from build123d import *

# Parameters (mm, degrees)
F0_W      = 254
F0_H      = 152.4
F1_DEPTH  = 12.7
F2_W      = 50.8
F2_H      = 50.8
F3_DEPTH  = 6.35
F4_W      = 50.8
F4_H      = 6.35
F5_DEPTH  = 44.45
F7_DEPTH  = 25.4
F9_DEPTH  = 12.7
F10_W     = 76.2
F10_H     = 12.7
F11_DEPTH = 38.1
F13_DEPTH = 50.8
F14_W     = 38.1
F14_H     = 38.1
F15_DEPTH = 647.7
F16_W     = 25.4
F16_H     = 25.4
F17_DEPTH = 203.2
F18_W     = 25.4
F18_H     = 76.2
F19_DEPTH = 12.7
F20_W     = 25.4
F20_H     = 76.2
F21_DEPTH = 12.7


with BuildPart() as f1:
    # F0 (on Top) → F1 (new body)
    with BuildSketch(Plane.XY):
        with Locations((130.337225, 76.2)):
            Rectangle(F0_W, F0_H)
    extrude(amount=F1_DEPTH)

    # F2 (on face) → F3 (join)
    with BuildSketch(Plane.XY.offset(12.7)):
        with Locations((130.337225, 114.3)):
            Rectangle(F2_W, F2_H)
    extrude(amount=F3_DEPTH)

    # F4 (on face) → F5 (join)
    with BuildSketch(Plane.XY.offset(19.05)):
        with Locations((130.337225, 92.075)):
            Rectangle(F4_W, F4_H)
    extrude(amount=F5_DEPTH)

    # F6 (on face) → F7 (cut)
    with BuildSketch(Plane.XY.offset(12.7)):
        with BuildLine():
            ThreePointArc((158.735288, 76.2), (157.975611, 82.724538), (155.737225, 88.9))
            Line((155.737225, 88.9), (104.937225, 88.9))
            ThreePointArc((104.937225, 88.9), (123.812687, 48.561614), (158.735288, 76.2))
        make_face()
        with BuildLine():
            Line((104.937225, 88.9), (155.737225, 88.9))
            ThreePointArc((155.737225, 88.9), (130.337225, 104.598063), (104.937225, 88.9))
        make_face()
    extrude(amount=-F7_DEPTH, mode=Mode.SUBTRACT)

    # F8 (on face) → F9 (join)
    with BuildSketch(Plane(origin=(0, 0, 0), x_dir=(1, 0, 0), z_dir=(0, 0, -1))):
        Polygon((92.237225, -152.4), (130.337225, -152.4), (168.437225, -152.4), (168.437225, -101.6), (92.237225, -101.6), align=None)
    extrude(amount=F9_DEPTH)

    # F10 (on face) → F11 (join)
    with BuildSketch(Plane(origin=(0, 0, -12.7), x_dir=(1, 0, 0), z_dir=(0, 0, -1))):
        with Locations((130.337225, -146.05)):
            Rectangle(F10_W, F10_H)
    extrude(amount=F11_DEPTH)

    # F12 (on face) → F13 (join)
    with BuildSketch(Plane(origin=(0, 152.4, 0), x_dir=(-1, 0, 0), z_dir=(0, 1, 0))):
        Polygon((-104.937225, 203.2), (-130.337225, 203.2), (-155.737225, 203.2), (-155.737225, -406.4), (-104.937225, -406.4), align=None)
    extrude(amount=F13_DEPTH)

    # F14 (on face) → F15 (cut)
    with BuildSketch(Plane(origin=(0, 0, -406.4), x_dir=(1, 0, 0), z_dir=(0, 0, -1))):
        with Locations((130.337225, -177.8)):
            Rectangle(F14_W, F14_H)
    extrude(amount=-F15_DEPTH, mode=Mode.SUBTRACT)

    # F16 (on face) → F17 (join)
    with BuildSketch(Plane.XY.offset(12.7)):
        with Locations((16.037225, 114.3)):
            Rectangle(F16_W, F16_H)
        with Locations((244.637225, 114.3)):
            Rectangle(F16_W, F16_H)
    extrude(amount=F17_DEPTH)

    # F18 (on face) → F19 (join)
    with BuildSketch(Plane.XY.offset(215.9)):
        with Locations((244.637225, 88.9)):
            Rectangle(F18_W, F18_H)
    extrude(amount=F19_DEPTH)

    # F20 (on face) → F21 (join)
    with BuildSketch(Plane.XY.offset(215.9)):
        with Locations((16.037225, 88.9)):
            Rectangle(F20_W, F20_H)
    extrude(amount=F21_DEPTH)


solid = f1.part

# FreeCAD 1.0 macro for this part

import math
import FreeCAD as App
import Part
import Sketcher
from FreeCAD import Vector
Q = App.Units.Quantity

doc = App.newDocument("Part")
body = doc.addObject("PartDesign::Body", "Body")

sketch1 = doc.addObject("Sketcher::SketchObject", "Sketch")
body.addObject(sketch1)
sketch1.AttachmentSupport = (doc.XY_Plane, [""])
sketch1.MapMode = "FlatFace"
sketch1.addGeometry(Part.LineSegment(Vector(3, 152, 0), Vector(3, 0, 0)), False)
sketch1.addGeometry(Part.LineSegment(Vector(3, 0, 0), Vector(257, 0, 0)), False)
sketch1.addGeometry(Part.LineSegment(Vector(257, 0, 0), Vector(257, 152, 0)), False)
sketch1.addGeometry(Part.LineSegment(Vector(257, 152, 0), Vector(3, 152, 0)), False)
sketch1.addConstraint(Sketcher.Constraint("Coincident", 0, 2, 1, 1))
sketch1.addConstraint(Sketcher.Constraint("Coincident", 1, 2, 2, 1))
sketch1.addConstraint(Sketcher.Constraint("Coincident", 2, 2, 3, 1))
sketch1.addConstraint(Sketcher.Constraint("Coincident", 3, 2, 0, 1))
sketch1.addConstraint(Sketcher.Constraint("Vertical", 0))
sketch1.addConstraint(Sketcher.Constraint("Horizontal", 1))
sketch1.addConstraint(Sketcher.Constraint("Vertical", 2))
sketch1.addConstraint(Sketcher.Constraint("Horizontal", 3))
sketch1.addConstraint(Sketcher.Constraint("PointOnObject", 0, 2, -1))
sketch1.addConstraint(Sketcher.Constraint("DistanceX", 1, 1, 1, 2, Q("10 in")))
sketch1.addConstraint(Sketcher.Constraint("DistanceY", 0, 2, 0, 1, Q("6 in")))
sketch1.addConstraint(Sketcher.Constraint("DistanceX", -1, 1, 0, 2, 3.337225))
pad1 = doc.addObject("PartDesign::Pad", "Pad")
body.addObject(pad1)
pad1.Profile = sketch1
pad1.Length = Q("0.5 in")

sketch2 = doc.addObject("Sketcher::SketchObject", "Sketch001")
body.addObject(sketch2)
sketch2.AttachmentSupport = (doc.XY_Plane, [""])
sketch2.MapMode = "FlatFace"
sketch2.AttachmentOffset = App.Placement(Vector(0, 0, 0.5 * 25.4), App.Rotation())
sketch2.addGeometry(Part.LineSegment(Vector(105, 140, 0), Vector(105, 89, 0)), False)
sketch2.addGeometry(Part.LineSegment(Vector(105, 89, 0), Vector(156, 89, 0)), False)
sketch2.addGeometry(Part.LineSegment(Vector(156, 89, 0), Vector(156, 140, 0)), False)
sketch2.addGeometry(Part.LineSegment(Vector(156, 140, 0), Vector(105, 140, 0)), False)
sketch2.addConstraint(Sketcher.Constraint("Coincident", 0, 2, 1, 1))
sketch2.addConstraint(Sketcher.Constraint("Coincident", 1, 2, 2, 1))
sketch2.addConstraint(Sketcher.Constraint("Coincident", 2, 2, 3, 1))
sketch2.addConstraint(Sketcher.Constraint("Coincident", 3, 2, 0, 1))
sketch2.addConstraint(Sketcher.Constraint("Vertical", 0))
sketch2.addConstraint(Sketcher.Constraint("Horizontal", 1))
sketch2.addConstraint(Sketcher.Constraint("Vertical", 2))
sketch2.addConstraint(Sketcher.Constraint("Horizontal", 3))
sketch2.addConstraint(Sketcher.Constraint("Equal", 3, 0))
sketch2.addConstraint(Sketcher.Constraint("DistanceX", 1, 1, 1, 2, Q("2 in")))
sketch2.addConstraint(Sketcher.Constraint("DistanceY", -1, 1, 0, 2, Q("3.5 in")))
sketch2.addConstraint(Sketcher.Constraint("DistanceX", -1, 1, 0, 2, 104.937225))
pad2 = doc.addObject("PartDesign::Pad", "Pad001")
body.addObject(pad2)
pad2.Profile = sketch2
pad2.Length = Q("0.25 in")

sketch3 = doc.addObject("Sketcher::SketchObject", "Sketch002")
body.addObject(sketch3)
sketch3.AttachmentSupport = (doc.XY_Plane, [""])
sketch3.MapMode = "FlatFace"
sketch3.AttachmentOffset = App.Placement(Vector(0, 0, 0.75 * 25.4), App.Rotation())
sketch3.addGeometry(Part.LineSegment(Vector(105, 95, 0), Vector(105, 89, 0)), False)
sketch3.addGeometry(Part.LineSegment(Vector(105, 89, 0), Vector(156, 89, 0)), False)
sketch3.addGeometry(Part.LineSegment(Vector(156, 89, 0), Vector(156, 95, 0)), False)
sketch3.addGeometry(Part.LineSegment(Vector(156, 95, 0), Vector(105, 95, 0)), False)
sketch3.addConstraint(Sketcher.Constraint("Coincident", 0, 2, 1, 1))
sketch3.addConstraint(Sketcher.Constraint("Coincident", 1, 2, 2, 1))
sketch3.addConstraint(Sketcher.Constraint("Coincident", 2, 2, 3, 1))
sketch3.addConstraint(Sketcher.Constraint("Coincident", 3, 2, 0, 1))
sketch3.addConstraint(Sketcher.Constraint("Vertical", 0))
sketch3.addConstraint(Sketcher.Constraint("Horizontal", 1))
sketch3.addConstraint(Sketcher.Constraint("Vertical", 2))
sketch3.addConstraint(Sketcher.Constraint("Horizontal", 3))
sketch3.addConstraint(Sketcher.Constraint("DistanceX", 1, 1, 1, 2, Q("2 in")))
sketch3.addConstraint(Sketcher.Constraint("DistanceY", 0, 2, 0, 1, Q("0.25 in")))
sketch3.addConstraint(Sketcher.Constraint("DistanceY", -1, 1, 0, 2, Q("3.5 in")))
sketch3.addConstraint(Sketcher.Constraint("DistanceX", -1, 1, 0, 2, 104.937225))
pad3 = doc.addObject("PartDesign::Pad", "Pad002")
body.addObject(pad3)
pad3.Profile = sketch3
pad3.Length = Q("1.75 in")

sketch4 = doc.addObject("Sketcher::SketchObject", "Sketch003")
body.addObject(sketch4)
sketch4.AttachmentSupport = (doc.XY_Plane, [""])
sketch4.MapMode = "FlatFace"
sketch4.AttachmentOffset = App.Placement(Vector(0, 0, 0.5 * 25.4), App.Rotation())
sketch4.addGeometry(Part.ArcOfCircle(Part.Circle(Vector(130, 76, 0), Vector(0, 0, 1), 28), math.radians(0), math.radians(27)), False)
sketch4.addGeometry(Part.ArcOfCircle(Part.Circle(Vector(130, 76, 0), Vector(0, 0, 1), 28), math.radians(27), math.radians(153)), False)
sketch4.addGeometry(Part.ArcOfCircle(Part.Circle(Vector(130, 76, 0), Vector(0, 0, 1), 28), math.radians(153), math.radians(360)), False)
sketch4.addConstraint(Sketcher.Constraint("Tangent", 0, 2, 1, 1))
sketch4.addConstraint(Sketcher.Constraint("Tangent", 1, 2, 2, 1))
sketch4.addConstraint(Sketcher.Constraint("Tangent", 2, 2, 0, 1))
sketch4.addConstraint(Sketcher.Constraint("Horizontal", 0, 2, 1, 2))
sketch4.addConstraint(Sketcher.Constraint("Horizontal", 1, 3, 2, 2))
sketch4.addConstraint(Sketcher.Constraint("DistanceY", -1, 1, 0, 3, Q("2.9999999 in")))
sketch4.addConstraint(Sketcher.Constraint("DistanceX", 2, 3, 0, 2, Q("1 in")))
sketch4.addConstraint(Sketcher.Constraint("DistanceY", -1, 1, 0, 2, Q("3.5 in")))
sketch4.addConstraint(Sketcher.Constraint("DistanceX", -1, 1, 2, 2, 158.735288))
pocket1 = doc.addObject("PartDesign::Pocket", "Pocket")
body.addObject(pocket1)
pocket1.Profile = sketch4
pocket1.Length = Q("1 in")

sketch5 = doc.addObject("Sketcher::SketchObject", "Sketch004")
body.addObject(sketch5)
sketch5.AttachmentSupport = (doc.XY_Plane, [""])
sketch5.MapMode = "FlatFace"
sketch5.addGeometry(Part.LineSegment(Vector(92, 152, 0), Vector(168, 152, 0)), False)
sketch5.addGeometry(Part.LineSegment(Vector(168, 152, 0), Vector(168, 102, 0)), False)
sketch5.addGeometry(Part.LineSegment(Vector(168, 102, 0), Vector(92, 102, 0)), False)
sketch5.addGeometry(Part.LineSegment(Vector(92, 102, 0), Vector(92, 152, 0)), False)
sketch5.addConstraint(Sketcher.Constraint("Coincident", 0, 2, 1, 1))
sketch5.addConstraint(Sketcher.Constraint("Coincident", 1, 2, 2, 1))
sketch5.addConstraint(Sketcher.Constraint("Coincident", 2, 2, 3, 1))
sketch5.addConstraint(Sketcher.Constraint("Coincident", 3, 2, 0, 1))
sketch5.addConstraint(Sketcher.Constraint("Horizontal", 0))
sketch5.addConstraint(Sketcher.Constraint("Vertical", 1))
sketch5.addConstraint(Sketcher.Constraint("Horizontal", 2))
sketch5.addConstraint(Sketcher.Constraint("Vertical", 3))
sketch5.addConstraint(Sketcher.Constraint("DistanceX", 0, 1, 0, 2, Q("3 in")))
sketch5.addConstraint(Sketcher.Constraint("DistanceY", 1, 2, 1, 1, Q("2 in")))
sketch5.addConstraint(Sketcher.Constraint("DistanceY", -1, 1, 0, 2, Q("6 in")))
sketch5.addConstraint(Sketcher.Constraint("DistanceX", -1, 1, 0, 2, 168.437225))
pad4 = doc.addObject("PartDesign::Pad", "Pad003")
body.addObject(pad4)
pad4.Profile = sketch5
pad4.Length = Q("0.5 in")
pad4.Reversed = True

sketch6 = doc.addObject("Sketcher::SketchObject", "Sketch005")
body.addObject(sketch6)
sketch6.AttachmentSupport = (doc.XY_Plane, [""])
sketch6.MapMode = "FlatFace"
sketch6.AttachmentOffset = App.Placement(Vector(0, 0, -0.5 * 25.4), App.Rotation())
sketch6.addGeometry(Part.LineSegment(Vector(92, 140, 0), Vector(92, 152, 0)), False)
sketch6.addGeometry(Part.LineSegment(Vector(92, 152, 0), Vector(168, 152, 0)), False)
sketch6.addGeometry(Part.LineSegment(Vector(168, 152, 0), Vector(168, 140, 0)), False)
sketch6.addGeometry(Part.LineSegment(Vector(168, 140, 0), Vector(92, 140, 0)), False)
sketch6.addConstraint(Sketcher.Constraint("Coincident", 0, 2, 1, 1))
sketch6.addConstraint(Sketcher.Constraint("Coincident", 1, 2, 2, 1))
sketch6.addConstraint(Sketcher.Constraint("Coincident", 2, 2, 3, 1))
sketch6.addConstraint(Sketcher.Constraint("Coincident", 3, 2, 0, 1))
sketch6.addConstraint(Sketcher.Constraint("Vertical", 0))
sketch6.addConstraint(Sketcher.Constraint("Horizontal", 1))
sketch6.addConstraint(Sketcher.Constraint("Vertical", 2))
sketch6.addConstraint(Sketcher.Constraint("Horizontal", 3))
sketch6.addConstraint(Sketcher.Constraint("DistanceX", 1, 1, 1, 2, Q("3 in")))
sketch6.addConstraint(Sketcher.Constraint("DistanceY", 0, 1, 0, 2, Q("0.5 in")))
sketch6.addConstraint(Sketcher.Constraint("DistanceY", -1, 1, 0, 2, Q("6 in")))
sketch6.addConstraint(Sketcher.Constraint("DistanceX", -1, 1, 0, 2, 92.237225))
pad5 = doc.addObject("PartDesign::Pad", "Pad004")
body.addObject(pad5)
pad5.Profile = sketch6
pad5.Length = Q("1.5 in")
pad5.Reversed = True

sketch7 = doc.addObject("Sketcher::SketchObject", "Sketch006")
body.addObject(sketch7)
sketch7.AttachmentSupport = (doc.XZ_Plane, [""])
sketch7.MapMode = "FlatFace"
sketch7.AttachmentOffset = App.Placement(Vector(0, 0, -6 * 25.4), App.Rotation())
sketch7.addGeometry(Part.LineSegment(Vector(105, 203, 0), Vector(156, 203, 0)), False)
sketch7.addGeometry(Part.LineSegment(Vector(156, 203, 0), Vector(156, -406, 0)), False)
sketch7.addGeometry(Part.LineSegment(Vector(156, -406, 0), Vector(105, -406, 0)), False)
sketch7.addGeometry(Part.LineSegment(Vector(105, -406, 0), Vector(105, 203, 0)), False)
sketch7.addConstraint(Sketcher.Constraint("Coincident", 0, 2, 1, 1))
sketch7.addConstraint(Sketcher.Constraint("Coincident", 1, 2, 2, 1))
sketch7.addConstraint(Sketcher.Constraint("Coincident", 2, 2, 3, 1))
sketch7.addConstraint(Sketcher.Constraint("Coincident", 3, 2, 0, 1))
sketch7.addConstraint(Sketcher.Constraint("Horizontal", 0))
sketch7.addConstraint(Sketcher.Constraint("Vertical", 1))
sketch7.addConstraint(Sketcher.Constraint("Horizontal", 2))
sketch7.addConstraint(Sketcher.Constraint("Vertical", 3))
sketch7.addConstraint(Sketcher.Constraint("DistanceX", 0, 1, 0, 2, Q("2 in")))
sketch7.addConstraint(Sketcher.Constraint("DistanceY", 1, 2, 1, 1, Q("24 in")))
sketch7.addConstraint(Sketcher.Constraint("DistanceY", -1, 1, 0, 2, Q("8 in")))
sketch7.addConstraint(Sketcher.Constraint("DistanceX", -1, 1, 0, 2, 155.737225))
pad6 = doc.addObject("PartDesign::Pad", "Pad005")
body.addObject(pad6)
pad6.Profile = sketch7
pad6.Length = Q("2 in")
pad6.Reversed = True

sketch8 = doc.addObject("Sketcher::SketchObject", "Sketch007")
body.addObject(sketch8)
sketch8.AttachmentSupport = (doc.XY_Plane, [""])
sketch8.MapMode = "FlatFace"
sketch8.AttachmentOffset = App.Placement(Vector(0, 0, -16 * 25.4), App.Rotation())
sketch8.addGeometry(Part.LineSegment(Vector(111, 159, 0), Vector(111, 197, 0)), False)
sketch8.addGeometry(Part.LineSegment(Vector(111, 197, 0), Vector(149, 197, 0)), False)
sketch8.addGeometry(Part.LineSegment(Vector(149, 197, 0), Vector(149, 159, 0)), False)
sketch8.addGeometry(Part.LineSegment(Vector(149, 159, 0), Vector(111, 159, 0)), False)
sketch8.addConstraint(Sketcher.Constraint("Coincident", 0, 2, 1, 1))
sketch8.addConstraint(Sketcher.Constraint("Coincident", 1, 2, 2, 1))
sketch8.addConstraint(Sketcher.Constraint("Coincident", 2, 2, 3, 1))
sketch8.addConstraint(Sketcher.Constraint("Coincident", 3, 2, 0, 1))
sketch8.addConstraint(Sketcher.Constraint("Vertical", 0))
sketch8.addConstraint(Sketcher.Constraint("Horizontal", 1))
sketch8.addConstraint(Sketcher.Constraint("Vertical", 2))
sketch8.addConstraint(Sketcher.Constraint("Horizontal", 3))
sketch8.addConstraint(Sketcher.Constraint("Equal", 3, 0))
sketch8.addConstraint(Sketcher.Constraint("DistanceX", 1, 1, 1, 2, Q("1.5 in")))
sketch8.addConstraint(Sketcher.Constraint("DistanceY", -1, 1, 0, 2, Q("7.75 in")))
sketch8.addConstraint(Sketcher.Constraint("DistanceX", -1, 1, 0, 2, 111.287225))
pocket2 = doc.addObject("PartDesign::Pocket", "Pocket001")
body.addObject(pocket2)
pocket2.Profile = sketch8
pocket2.Length = Q("25.5 in")
pocket2.Reversed = True

sketch9 = doc.addObject("Sketcher::SketchObject", "Sketch008")
body.addObject(sketch9)
sketch9.AttachmentSupport = (doc.XY_Plane, [""])
sketch9.MapMode = "FlatFace"
sketch9.AttachmentOffset = App.Placement(Vector(0, 0, 0.5 * 25.4), App.Rotation())
sketch9.addGeometry(Part.LineSegment(Vector(3, 127, 0), Vector(3, 102, 0)), False)
sketch9.addGeometry(Part.LineSegment(Vector(3, 102, 0), Vector(29, 102, 0)), False)
sketch9.addGeometry(Part.LineSegment(Vector(29, 102, 0), Vector(29, 127, 0)), False)
sketch9.addGeometry(Part.LineSegment(Vector(29, 127, 0), Vector(3, 127, 0)), False)
sketch9.addGeometry(Part.LineSegment(Vector(232, 127, 0), Vector(232, 102, 0)), False)
sketch9.addGeometry(Part.LineSegment(Vector(232, 102, 0), Vector(257, 102, 0)), False)
sketch9.addGeometry(Part.LineSegment(Vector(257, 102, 0), Vector(257, 127, 0)), False)
sketch9.addGeometry(Part.LineSegment(Vector(257, 127, 0), Vector(232, 127, 0)), False)
sketch9.addConstraint(Sketcher.Constraint("Coincident", 0, 2, 1, 1))
sketch9.addConstraint(Sketcher.Constraint("Coincident", 1, 2, 2, 1))
sketch9.addConstraint(Sketcher.Constraint("Coincident", 2, 2, 3, 1))
sketch9.addConstraint(Sketcher.Constraint("Coincident", 3, 2, 0, 1))
sketch9.addConstraint(Sketcher.Constraint("Coincident", 4, 2, 5, 1))
sketch9.addConstraint(Sketcher.Constraint("Coincident", 5, 2, 6, 1))
sketch9.addConstraint(Sketcher.Constraint("Coincident", 6, 2, 7, 1))
sketch9.addConstraint(Sketcher.Constraint("Coincident", 7, 2, 4, 1))
sketch9.addConstraint(Sketcher.Constraint("Vertical", 0))
sketch9.addConstraint(Sketcher.Constraint("Horizontal", 1))
sketch9.addConstraint(Sketcher.Constraint("Vertical", 2))
sketch9.addConstraint(Sketcher.Constraint("Horizontal", 3))
sketch9.addConstraint(Sketcher.Constraint("Vertical", 4))
sketch9.addConstraint(Sketcher.Constraint("Horizontal", 5))
sketch9.addConstraint(Sketcher.Constraint("Vertical", 6))
sketch9.addConstraint(Sketcher.Constraint("Horizontal", 7))
sketch9.addConstraint(Sketcher.Constraint("Horizontal", 1, 2, 4, 2))
sketch9.addConstraint(Sketcher.Constraint("Horizontal", 3, 2, 6, 2))
sketch9.addConstraint(Sketcher.Constraint("Equal", 3, 5))
sketch9.addConstraint(Sketcher.Constraint("Equal", 7, 0))
sketch9.addConstraint(Sketcher.Constraint("DistanceX", 1, 1, 1, 2, Q("1 in")))
sketch9.addConstraint(Sketcher.Constraint("DistanceY", -1, 1, 0, 2, Q("4 in")))
sketch9.addConstraint(Sketcher.Constraint("DistanceX", 1, 2, 4, 2, Q("8 in")))
sketch9.addConstraint(Sketcher.Constraint("DistanceX", -1, 1, 0, 2, 3.337225))
pad7 = doc.addObject("PartDesign::Pad", "Pad006")
body.addObject(pad7)
pad7.Profile = sketch9
pad7.Length = Q("8 in")

sketch10 = doc.addObject("Sketcher::SketchObject", "Sketch009")
body.addObject(sketch10)
sketch10.AttachmentSupport = (doc.XY_Plane, [""])
sketch10.MapMode = "FlatFace"
sketch10.AttachmentOffset = App.Placement(Vector(0, 0, 8.5 * 25.4), App.Rotation())
sketch10.addGeometry(Part.LineSegment(Vector(232, 127, 0), Vector(232, 51, 0)), False)
sketch10.addGeometry(Part.LineSegment(Vector(232, 51, 0), Vector(257, 51, 0)), False)
sketch10.addGeometry(Part.LineSegment(Vector(257, 51, 0), Vector(257, 127, 0)), False)
sketch10.addGeometry(Part.LineSegment(Vector(257, 127, 0), Vector(232, 127, 0)), False)
sketch10.addConstraint(Sketcher.Constraint("Coincident", 0, 2, 1, 1))
sketch10.addConstraint(Sketcher.Constraint("Coincident", 1, 2, 2, 1))
sketch10.addConstraint(Sketcher.Constraint("Coincident", 2, 2, 3, 1))
sketch10.addConstraint(Sketcher.Constraint("Coincident", 3, 2, 0, 1))
sketch10.addConstraint(Sketcher.Constraint("Vertical", 0))
sketch10.addConstraint(Sketcher.Constraint("Horizontal", 1))
sketch10.addConstraint(Sketcher.Constraint("Vertical", 2))
sketch10.addConstraint(Sketcher.Constraint("Horizontal", 3))
sketch10.addConstraint(Sketcher.Constraint("DistanceX", 1, 1, 1, 2, Q("1 in")))
sketch10.addConstraint(Sketcher.Constraint("DistanceY", 0, 2, 0, 1, Q("3 in")))
sketch10.addConstraint(Sketcher.Constraint("DistanceY", -1, 1, 0, 2, Q("2 in")))
sketch10.addConstraint(Sketcher.Constraint("DistanceX", -1, 1, 0, 2, 231.937225))
pad8 = doc.addObject("PartDesign::Pad", "Pad007")
body.addObject(pad8)
pad8.Profile = sketch10
pad8.Length = Q("0.5 in")

sketch11 = doc.addObject("Sketcher::SketchObject", "Sketch010")
body.addObject(sketch11)
sketch11.AttachmentSupport = (doc.XY_Plane, [""])
sketch11.MapMode = "FlatFace"
sketch11.AttachmentOffset = App.Placement(Vector(0, 0, 8.5 * 25.4), App.Rotation())
sketch11.addGeometry(Part.LineSegment(Vector(3, 127, 0), Vector(3, 51, 0)), False)
sketch11.addGeometry(Part.LineSegment(Vector(3, 51, 0), Vector(29, 51, 0)), False)
sketch11.addGeometry(Part.LineSegment(Vector(29, 51, 0), Vector(29, 127, 0)), False)
sketch11.addGeometry(Part.LineSegment(Vector(29, 127, 0), Vector(3, 127, 0)), False)
sketch11.addConstraint(Sketcher.Constraint("Coincident", 0, 2, 1, 1))
sketch11.addConstraint(Sketcher.Constraint("Coincident", 1, 2, 2, 1))
sketch11.addConstraint(Sketcher.Constraint("Coincident", 2, 2, 3, 1))
sketch11.addConstraint(Sketcher.Constraint("Coincident", 3, 2, 0, 1))
sketch11.addConstraint(Sketcher.Constraint("Vertical", 0))
sketch11.addConstraint(Sketcher.Constraint("Horizontal", 1))
sketch11.addConstraint(Sketcher.Constraint("Vertical", 2))
sketch11.addConstraint(Sketcher.Constraint("Horizontal", 3))
sketch11.addConstraint(Sketcher.Constraint("DistanceX", 1, 1, 1, 2, Q("1 in")))
sketch11.addConstraint(Sketcher.Constraint("DistanceY", 0, 2, 0, 1, Q("3 in")))
sketch11.addConstraint(Sketcher.Constraint("DistanceY", -1, 1, 0, 2, Q("2 in")))
sketch11.addConstraint(Sketcher.Constraint("DistanceX", -1, 1, 0, 2, 3.337225))
pad9 = doc.addObject("PartDesign::Pad", "Pad008")
body.addObject(pad9)
pad9.Profile = sketch11
pad9.Length = Q("0.5 in")

doc.recompute()
